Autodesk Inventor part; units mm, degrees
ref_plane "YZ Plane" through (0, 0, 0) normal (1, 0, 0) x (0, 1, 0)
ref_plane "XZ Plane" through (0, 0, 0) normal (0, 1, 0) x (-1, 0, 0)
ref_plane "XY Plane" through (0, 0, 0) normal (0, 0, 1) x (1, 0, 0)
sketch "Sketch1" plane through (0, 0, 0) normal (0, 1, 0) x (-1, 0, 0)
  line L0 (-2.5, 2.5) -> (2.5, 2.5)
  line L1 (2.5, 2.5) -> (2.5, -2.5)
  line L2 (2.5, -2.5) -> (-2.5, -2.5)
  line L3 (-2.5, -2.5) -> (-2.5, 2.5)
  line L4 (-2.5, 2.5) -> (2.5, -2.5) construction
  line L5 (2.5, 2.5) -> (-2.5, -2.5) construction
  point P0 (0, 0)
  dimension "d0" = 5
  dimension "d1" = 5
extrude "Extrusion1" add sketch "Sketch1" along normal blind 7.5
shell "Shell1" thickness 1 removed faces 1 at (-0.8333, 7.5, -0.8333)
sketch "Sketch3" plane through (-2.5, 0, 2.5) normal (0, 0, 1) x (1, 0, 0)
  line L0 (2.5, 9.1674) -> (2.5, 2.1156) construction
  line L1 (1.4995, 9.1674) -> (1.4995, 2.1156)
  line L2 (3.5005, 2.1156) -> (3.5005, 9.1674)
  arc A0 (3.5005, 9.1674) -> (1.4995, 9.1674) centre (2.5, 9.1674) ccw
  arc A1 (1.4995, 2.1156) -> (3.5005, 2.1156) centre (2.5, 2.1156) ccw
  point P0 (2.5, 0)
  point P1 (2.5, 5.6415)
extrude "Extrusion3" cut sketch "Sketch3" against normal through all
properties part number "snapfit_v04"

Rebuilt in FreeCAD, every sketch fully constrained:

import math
import FreeCAD as App
import Part
import Sketcher

V = App.Vector


def faces_at(feature, points):
    """Names of the faces that lie closest to the given points."""
    faces = feature.Shape.Faces
    near = lambda p: min(range(len(faces)), key=lambda i: faces[i].distToShape(Part.Vertex(*p))[0])
    return sorted({f"Face{near(p) + 1}" for p in points})


def add_polygon(sketch, points):
    """Adds a closed chain of lines whose ends are joined by coincident constraints."""
    first, n = sketch.GeometryCount, len(points)
    for a, b in zip(points, points[1:] + points[:1]):
        sketch.addGeometry(Part.LineSegment(App.Vector(*a, 0), App.Vector(*b, 0)), False)
    for i in range(n):
        sketch.addConstraint(Sketcher.Constraint("Coincident", first + i, 2, first + (i + 1) % n, 1))

doc = App.newDocument("Part")
body = doc.addObject("PartDesign::Body", "Body")

sketch1 = body.newObject("Sketcher::SketchObject", "Sketch")
sketch1.AttachmentSupport = (doc.getObject("XZ_Plane"), [""])
sketch1.MapMode = "FlatFace"
add_polygon(sketch1, [(-2, 2), (2, 2), (2, -2), (-2, -2)])
sketch1.addConstraint([
    Sketcher.Constraint("Horizontal", 0),
    Sketcher.Constraint("Vertical", 1),
    Sketcher.Constraint("Horizontal", 2),
    Sketcher.Constraint("Vertical", 3),
    Sketcher.Constraint("Symmetric", 0, 2, 2, 2, -1, 1),
    Sketcher.Constraint("Equal", 2, 1),
    Sketcher.Constraint("DistanceX", 0, 1, 0, 2, 5.0),
])
pad1 = body.newObject("PartDesign::Pad", "Pad")
pad1.Profile = sketch1
pad1.Length = 7.5
pad1.Reversed = True
doc.recompute()

thickness = body.newObject("PartDesign::Thickness", "Thickness")
thickness.Base = (pad1, faces_at(pad1, [(-0.833, 7.5, -0.833)]))
thickness.Value = 1
thickness.Reversed = True
thickness.Join = "Intersection"

sketch2 = body.newObject("Sketcher::SketchObject", "Sketch001")
sketch2.AttachmentSupport = (doc.getObject("XY_Plane"), [""])
sketch2.MapMode = "FlatFace"
sketch2.AttachmentOffset = App.Placement(V(0, 0, 2.5), App.Rotation())
sketch2.addGeometry([
    Part.ArcOfCircle(Part.Circle(V(0, 9.2, 0), V(0, 0, 1), 1), math.radians(0), math.radians(180)),
    Part.LineSegment(V(-1, 9.2, 0), V(-1, 2.1, 0)),
    Part.ArcOfCircle(Part.Circle(V(0, 2.1, 0), V(0, 0, 1), 1), math.radians(180), math.radians(360)),
    Part.LineSegment(V(1, 2.1, 0), V(1, 9.2, 0)),
], False)
sketch2.addConstraint([
    Sketcher.Constraint("Tangent", 0, 2, 1, 1),
    Sketcher.Constraint("Tangent", 1, 2, 2, 1),
    Sketcher.Constraint("Tangent", 2, 2, 3, 1),
    Sketcher.Constraint("Tangent", 3, 2, 0, 1),
    Sketcher.Constraint("Vertical", 1),
    Sketcher.Constraint("Vertical", 3),
    Sketcher.Constraint("PointOnObject", 0, 3, -2),
    Sketcher.Constraint("Radius", 0, 1.0005),
    Sketcher.Constraint("DistanceY", 1, 2, 1, 1, 7.0518),
    Sketcher.Constraint("DistanceY", -1, 1, 0, 3, 9.1674),
])
pocket1 = body.newObject("PartDesign::Pocket", "Pocket")
pocket1.Profile = sketch2
pocket1.Type = "ThroughAll"

doc.recompute()
